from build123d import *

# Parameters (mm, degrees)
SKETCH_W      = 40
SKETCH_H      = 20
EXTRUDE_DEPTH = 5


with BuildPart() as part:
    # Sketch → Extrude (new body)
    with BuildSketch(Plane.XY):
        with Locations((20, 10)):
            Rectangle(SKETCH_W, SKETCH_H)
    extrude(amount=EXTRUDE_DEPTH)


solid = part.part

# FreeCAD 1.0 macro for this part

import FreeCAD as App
import Part
import Sketcher
Q = App.Units.Quantity

doc = App.newDocument("Part")
body = doc.addObject("PartDesign::Body", "Body")

# Sketch on XY plane
sketch1 = body.newObject("Sketcher::SketchObject", "Sketch")
sketch1.AttachmentSupport = (doc.getObject("XY_Plane"), [""])
sketch1.MapMode = "FlatFace"
sketch1.addGeometry([
    Part.LineSegment(App.Vector(0, 20, 0), App.Vector(0, 0, 0)),
    Part.LineSegment(App.Vector(0, 0, 0), App.Vector(40, 0, 0)),
    Part.LineSegment(App.Vector(40, 0, 0), App.Vector(40, 20, 0)),
    Part.LineSegment(App.Vector(40, 20, 0), App.Vector(0, 20, 0)),
], False)
sketch1.addConstraint([
    Sketcher.Constraint("Coincident", 0, 2, 1, 1),
    Sketcher.Constraint("Coincident", 1, 2, 2, 1),
    Sketcher.Constraint("Coincident", 2, 2, 3, 1),
    Sketcher.Constraint("Coincident", 3, 2, 0, 1),
    Sketcher.Constraint("Vertical", 0),
    Sketcher.Constraint("Horizontal", 1),
    Sketcher.Constraint("Vertical", 2),
    Sketcher.Constraint("Horizontal", 3),
    Sketcher.Constraint("Coincident", 0, 2, -1, 1),
    Sketcher.Constraint("DistanceX", 1, 1, 1, 2, Q("40 mm")),
    Sketcher.Constraint("DistanceY", 0, 2, 0, 1, Q("20 mm")),
])
pad1 = body.newObject("PartDesign::Pad", "Pad")
pad1.Profile = sketch1
pad1.Length = 5

doc.recompute()
